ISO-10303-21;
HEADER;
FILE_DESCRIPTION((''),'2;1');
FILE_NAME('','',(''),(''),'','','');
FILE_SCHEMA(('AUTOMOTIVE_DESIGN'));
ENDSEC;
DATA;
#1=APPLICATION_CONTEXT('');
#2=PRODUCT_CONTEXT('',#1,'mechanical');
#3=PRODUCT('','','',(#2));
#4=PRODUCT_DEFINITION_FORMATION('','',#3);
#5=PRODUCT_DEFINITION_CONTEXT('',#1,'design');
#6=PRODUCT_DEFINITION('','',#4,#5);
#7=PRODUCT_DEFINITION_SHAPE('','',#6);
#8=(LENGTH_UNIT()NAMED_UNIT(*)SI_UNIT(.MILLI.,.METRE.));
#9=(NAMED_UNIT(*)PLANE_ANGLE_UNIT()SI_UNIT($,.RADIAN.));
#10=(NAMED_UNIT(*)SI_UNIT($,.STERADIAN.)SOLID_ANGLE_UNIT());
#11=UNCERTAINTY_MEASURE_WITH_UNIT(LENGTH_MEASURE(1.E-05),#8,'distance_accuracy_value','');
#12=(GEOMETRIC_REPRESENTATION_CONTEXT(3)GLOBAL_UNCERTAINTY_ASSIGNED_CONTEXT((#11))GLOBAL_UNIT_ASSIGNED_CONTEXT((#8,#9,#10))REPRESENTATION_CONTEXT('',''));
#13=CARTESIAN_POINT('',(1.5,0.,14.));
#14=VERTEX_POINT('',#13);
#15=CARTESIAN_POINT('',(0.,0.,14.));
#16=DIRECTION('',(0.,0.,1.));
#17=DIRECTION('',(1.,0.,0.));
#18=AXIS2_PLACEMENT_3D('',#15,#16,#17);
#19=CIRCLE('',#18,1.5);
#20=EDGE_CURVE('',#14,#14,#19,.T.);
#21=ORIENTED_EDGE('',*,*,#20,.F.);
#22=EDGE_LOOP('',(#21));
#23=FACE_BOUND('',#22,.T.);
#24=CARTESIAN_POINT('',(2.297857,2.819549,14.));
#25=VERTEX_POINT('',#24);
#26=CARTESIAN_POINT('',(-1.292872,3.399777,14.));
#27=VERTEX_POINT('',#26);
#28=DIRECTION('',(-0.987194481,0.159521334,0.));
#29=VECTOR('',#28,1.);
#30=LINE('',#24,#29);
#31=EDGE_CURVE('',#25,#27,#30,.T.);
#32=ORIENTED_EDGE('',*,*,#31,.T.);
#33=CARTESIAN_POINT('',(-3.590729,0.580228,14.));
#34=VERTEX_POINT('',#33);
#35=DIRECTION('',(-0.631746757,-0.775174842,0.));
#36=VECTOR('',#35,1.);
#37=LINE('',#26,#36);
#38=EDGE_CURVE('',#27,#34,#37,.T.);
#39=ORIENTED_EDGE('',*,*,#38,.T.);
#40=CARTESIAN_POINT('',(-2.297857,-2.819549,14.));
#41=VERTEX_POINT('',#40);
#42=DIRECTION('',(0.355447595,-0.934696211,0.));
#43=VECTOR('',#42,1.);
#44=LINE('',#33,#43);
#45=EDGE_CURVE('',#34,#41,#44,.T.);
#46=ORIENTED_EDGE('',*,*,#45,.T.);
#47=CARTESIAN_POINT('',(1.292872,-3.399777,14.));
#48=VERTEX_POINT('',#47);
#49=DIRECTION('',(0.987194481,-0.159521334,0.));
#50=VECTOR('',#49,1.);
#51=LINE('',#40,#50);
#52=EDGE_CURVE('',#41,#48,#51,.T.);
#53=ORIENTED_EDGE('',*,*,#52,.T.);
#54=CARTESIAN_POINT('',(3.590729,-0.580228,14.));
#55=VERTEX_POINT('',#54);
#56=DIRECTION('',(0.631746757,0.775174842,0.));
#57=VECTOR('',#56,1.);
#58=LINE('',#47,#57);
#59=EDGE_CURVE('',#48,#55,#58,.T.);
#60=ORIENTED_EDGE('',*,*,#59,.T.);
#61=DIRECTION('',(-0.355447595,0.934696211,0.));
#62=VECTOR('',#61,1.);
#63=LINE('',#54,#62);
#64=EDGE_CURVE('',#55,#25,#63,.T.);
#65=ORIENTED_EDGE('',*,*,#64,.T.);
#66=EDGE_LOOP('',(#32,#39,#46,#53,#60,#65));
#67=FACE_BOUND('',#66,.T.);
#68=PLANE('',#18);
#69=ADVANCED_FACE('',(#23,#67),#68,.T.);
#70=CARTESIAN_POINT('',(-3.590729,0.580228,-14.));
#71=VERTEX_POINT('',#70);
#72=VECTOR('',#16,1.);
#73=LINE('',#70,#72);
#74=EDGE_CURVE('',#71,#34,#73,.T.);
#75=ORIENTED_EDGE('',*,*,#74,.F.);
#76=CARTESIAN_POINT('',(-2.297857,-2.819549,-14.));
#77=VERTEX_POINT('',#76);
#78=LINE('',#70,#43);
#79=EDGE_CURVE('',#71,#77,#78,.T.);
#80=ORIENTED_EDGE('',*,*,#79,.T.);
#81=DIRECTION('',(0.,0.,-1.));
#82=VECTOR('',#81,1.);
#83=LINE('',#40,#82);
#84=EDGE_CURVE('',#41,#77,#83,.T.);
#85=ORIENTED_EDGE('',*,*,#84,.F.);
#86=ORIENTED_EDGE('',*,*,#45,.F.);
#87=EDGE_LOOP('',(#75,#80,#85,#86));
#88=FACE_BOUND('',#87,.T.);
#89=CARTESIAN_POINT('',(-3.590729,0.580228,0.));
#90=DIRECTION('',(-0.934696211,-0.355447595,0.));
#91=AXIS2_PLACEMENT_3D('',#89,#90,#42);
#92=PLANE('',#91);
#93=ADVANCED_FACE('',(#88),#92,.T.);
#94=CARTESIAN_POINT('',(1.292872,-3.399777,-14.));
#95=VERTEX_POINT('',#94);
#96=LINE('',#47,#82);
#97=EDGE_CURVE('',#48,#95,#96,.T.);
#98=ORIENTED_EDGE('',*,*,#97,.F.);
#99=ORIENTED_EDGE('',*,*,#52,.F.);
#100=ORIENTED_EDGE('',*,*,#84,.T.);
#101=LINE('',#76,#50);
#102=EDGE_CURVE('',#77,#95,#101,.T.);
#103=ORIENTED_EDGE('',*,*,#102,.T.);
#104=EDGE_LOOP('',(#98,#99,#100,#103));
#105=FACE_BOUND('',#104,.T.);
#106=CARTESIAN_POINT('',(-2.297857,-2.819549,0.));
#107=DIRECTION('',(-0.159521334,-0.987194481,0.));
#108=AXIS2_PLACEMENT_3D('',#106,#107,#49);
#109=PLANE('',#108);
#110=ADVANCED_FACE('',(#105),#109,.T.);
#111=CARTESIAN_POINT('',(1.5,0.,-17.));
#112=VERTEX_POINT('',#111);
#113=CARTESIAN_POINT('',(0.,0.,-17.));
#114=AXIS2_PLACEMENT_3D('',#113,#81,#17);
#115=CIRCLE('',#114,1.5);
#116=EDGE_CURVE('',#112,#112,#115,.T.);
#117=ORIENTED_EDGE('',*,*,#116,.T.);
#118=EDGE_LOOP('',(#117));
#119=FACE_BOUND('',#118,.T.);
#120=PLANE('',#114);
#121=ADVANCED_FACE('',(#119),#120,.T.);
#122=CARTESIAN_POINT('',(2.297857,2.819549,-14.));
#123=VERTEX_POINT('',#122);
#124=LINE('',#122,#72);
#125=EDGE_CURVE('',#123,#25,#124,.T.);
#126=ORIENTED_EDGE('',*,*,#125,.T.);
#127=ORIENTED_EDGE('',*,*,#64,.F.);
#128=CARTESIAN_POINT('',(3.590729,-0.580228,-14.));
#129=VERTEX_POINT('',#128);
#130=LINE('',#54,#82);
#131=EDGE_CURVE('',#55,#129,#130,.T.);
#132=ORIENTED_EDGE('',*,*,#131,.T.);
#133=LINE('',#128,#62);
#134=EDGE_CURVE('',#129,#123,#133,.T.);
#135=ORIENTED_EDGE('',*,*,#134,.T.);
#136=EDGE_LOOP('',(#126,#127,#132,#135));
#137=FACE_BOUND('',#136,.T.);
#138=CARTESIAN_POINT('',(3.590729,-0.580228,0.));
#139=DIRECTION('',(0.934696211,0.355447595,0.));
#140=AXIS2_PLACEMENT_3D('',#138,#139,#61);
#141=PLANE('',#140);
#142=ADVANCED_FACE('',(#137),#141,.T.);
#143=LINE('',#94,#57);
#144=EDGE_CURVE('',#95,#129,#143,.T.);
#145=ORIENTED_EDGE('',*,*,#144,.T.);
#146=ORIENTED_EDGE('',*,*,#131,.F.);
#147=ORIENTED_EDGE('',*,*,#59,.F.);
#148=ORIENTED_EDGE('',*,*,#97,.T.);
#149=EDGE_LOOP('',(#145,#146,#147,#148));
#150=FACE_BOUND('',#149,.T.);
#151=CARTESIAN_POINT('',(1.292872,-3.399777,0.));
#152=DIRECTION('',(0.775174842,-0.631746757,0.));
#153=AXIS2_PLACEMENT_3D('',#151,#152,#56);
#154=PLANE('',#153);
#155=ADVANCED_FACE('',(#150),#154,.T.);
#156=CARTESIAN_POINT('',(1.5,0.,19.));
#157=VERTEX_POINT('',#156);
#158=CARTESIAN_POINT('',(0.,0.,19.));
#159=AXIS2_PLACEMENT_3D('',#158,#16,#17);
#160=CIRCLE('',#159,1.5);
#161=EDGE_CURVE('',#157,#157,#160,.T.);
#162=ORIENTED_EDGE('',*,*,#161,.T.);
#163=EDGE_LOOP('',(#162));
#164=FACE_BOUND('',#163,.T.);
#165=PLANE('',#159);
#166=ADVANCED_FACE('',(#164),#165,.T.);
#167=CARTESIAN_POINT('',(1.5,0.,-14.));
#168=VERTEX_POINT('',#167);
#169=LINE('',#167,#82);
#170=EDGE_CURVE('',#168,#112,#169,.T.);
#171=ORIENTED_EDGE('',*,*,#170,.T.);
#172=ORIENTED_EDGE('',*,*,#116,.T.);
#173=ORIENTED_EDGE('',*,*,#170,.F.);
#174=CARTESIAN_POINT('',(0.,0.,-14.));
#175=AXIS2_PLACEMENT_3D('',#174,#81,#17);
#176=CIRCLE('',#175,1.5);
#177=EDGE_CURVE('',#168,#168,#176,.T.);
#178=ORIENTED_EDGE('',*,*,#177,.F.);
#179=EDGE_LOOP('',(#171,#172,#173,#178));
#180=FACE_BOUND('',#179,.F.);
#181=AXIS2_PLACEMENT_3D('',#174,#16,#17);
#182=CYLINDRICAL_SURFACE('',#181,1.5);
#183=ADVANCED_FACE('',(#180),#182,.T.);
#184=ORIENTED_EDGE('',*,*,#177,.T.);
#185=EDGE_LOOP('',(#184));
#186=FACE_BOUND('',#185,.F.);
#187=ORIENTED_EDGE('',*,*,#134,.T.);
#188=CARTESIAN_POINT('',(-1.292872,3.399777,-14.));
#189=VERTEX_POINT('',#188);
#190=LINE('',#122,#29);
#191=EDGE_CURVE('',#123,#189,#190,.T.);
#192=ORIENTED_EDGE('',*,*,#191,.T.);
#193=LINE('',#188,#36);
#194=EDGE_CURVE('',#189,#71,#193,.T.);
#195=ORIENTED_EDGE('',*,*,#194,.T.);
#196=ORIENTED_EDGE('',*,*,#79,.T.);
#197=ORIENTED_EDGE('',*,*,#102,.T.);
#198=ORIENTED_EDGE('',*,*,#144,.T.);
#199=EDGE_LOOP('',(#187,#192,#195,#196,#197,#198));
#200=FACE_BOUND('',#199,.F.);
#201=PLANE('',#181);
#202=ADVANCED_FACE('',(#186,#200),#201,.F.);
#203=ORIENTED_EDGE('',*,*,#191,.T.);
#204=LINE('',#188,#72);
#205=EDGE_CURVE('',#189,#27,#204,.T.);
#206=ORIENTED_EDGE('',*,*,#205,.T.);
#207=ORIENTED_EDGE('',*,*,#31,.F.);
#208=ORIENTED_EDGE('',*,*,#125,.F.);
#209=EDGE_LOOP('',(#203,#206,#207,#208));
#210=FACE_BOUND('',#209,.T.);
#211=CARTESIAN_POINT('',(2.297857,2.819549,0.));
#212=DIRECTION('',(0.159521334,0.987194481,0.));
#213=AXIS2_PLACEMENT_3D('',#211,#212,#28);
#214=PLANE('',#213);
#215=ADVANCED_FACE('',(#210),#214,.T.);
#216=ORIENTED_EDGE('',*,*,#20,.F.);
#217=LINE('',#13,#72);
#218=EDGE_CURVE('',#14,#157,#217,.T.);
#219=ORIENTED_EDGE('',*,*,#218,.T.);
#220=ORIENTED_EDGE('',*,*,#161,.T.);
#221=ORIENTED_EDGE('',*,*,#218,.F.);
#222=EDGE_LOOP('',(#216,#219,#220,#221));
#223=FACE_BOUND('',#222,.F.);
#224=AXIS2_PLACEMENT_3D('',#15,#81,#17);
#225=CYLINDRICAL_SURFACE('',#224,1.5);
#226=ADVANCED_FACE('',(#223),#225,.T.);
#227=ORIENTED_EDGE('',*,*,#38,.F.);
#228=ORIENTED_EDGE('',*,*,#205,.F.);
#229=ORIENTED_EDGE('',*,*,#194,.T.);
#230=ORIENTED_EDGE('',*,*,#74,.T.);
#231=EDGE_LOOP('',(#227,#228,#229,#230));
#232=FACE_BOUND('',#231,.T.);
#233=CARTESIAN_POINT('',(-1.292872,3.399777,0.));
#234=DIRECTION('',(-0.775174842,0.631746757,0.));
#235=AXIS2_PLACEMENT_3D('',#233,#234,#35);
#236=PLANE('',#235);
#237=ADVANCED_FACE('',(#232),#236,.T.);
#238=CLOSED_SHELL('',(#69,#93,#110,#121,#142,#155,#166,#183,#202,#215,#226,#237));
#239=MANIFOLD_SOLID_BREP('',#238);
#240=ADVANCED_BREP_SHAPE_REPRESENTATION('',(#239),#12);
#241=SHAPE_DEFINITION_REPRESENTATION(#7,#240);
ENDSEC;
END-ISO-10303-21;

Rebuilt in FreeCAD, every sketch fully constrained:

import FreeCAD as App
import Part
import Sketcher
from FreeCAD import Vector
Q = App.Units.Quantity

doc = App.newDocument("Part")
body = doc.addObject("PartDesign::Body", "Body")

# Sketch on XY plane
sketch1 = body.newObject("Sketcher::SketchObject", "Sketch")
sketch1.AttachmentSupport = (doc.getObject("XY_Plane"), [""])
sketch1.MapMode = "FlatFace"
sketch1.addGeometry([
    Part.LineSegment(Vector(3.6, -0.6, 0), Vector(2.3, 2.8, 0)),  # 0
    Part.LineSegment(Vector(2.3, 2.8, 0), Vector(-1.3, 3.4, 0)),  # 1
    Part.LineSegment(Vector(-1.3, 3.4, 0), Vector(-3.6, 0.6, 0)),  # 2
    Part.LineSegment(Vector(-3.6, 0.6, 0), Vector(-2.3, -2.8, 0)),  # 3
    Part.LineSegment(Vector(-2.3, -2.8, 0), Vector(1.3, -3.4, 0)),  # 4
    Part.LineSegment(Vector(1.3, -3.4, 0), Vector(3.6, -0.6, 0)),  # 5
    Part.Circle(Vector(0, 0, 0), Vector(0, 0, 1), 1.5),  # 6
], False)
sketch1.addConstraint([
    Sketcher.Constraint("Coincident", 0, 2, 1, 1),
    Sketcher.Constraint("Coincident", 1, 2, 2, 1),
    Sketcher.Constraint("Coincident", 2, 2, 3, 1),
    Sketcher.Constraint("Coincident", 3, 2, 4, 1),
    Sketcher.Constraint("Coincident", 4, 2, 5, 1),
    Sketcher.Constraint("Coincident", 5, 2, 0, 1),
    Sketcher.Constraint("Coincident", 6, 3, -1, 1),
    Sketcher.Constraint("Symmetric", 0, 2, 3, 2, -1, 1),
    Sketcher.Constraint("Symmetric", 1, 2, 4, 2, -1, 1),
    Sketcher.Constraint("Symmetric", 2, 2, 5, 2, -1, 1),
    Sketcher.Constraint("Equal", 0, 1),
    Sketcher.Constraint("Equal", 1, 2),
    Sketcher.Constraint("Diameter", 6, Q("3 mm")),
    Sketcher.Constraint("DistanceX", 2, 2, 4, 2, Q("4.883601 mm")),
    Sketcher.Constraint("DistanceY", -1, 1, 0, 2, Q("2.819549 mm")),
    Sketcher.Constraint("DistanceX", 2, 2, -1, 1, Q("3.590729 mm")),
    Sketcher.Constraint("DistanceX", 1, 2, 0, 2, Q("3.590729 mm")),
])
pad1 = body.newObject("PartDesign::Pad", "Pad")
pad1.Profile = sketch1
pad1.Length = 28
pad1.Midplane = True

# Sketch on XY plane
sketch2 = body.newObject("Sketcher::SketchObject", "Sketch001")
sketch2.AttachmentSupport = (doc.getObject("XY_Plane"), [""])
sketch2.MapMode = "FlatFace"
sketch2.addGeometry(Part.Circle(Vector(0, 0, 0), Vector(0, 0, 1), 1.5), False)
sketch2.addConstraint([
    Sketcher.Constraint("Coincident", 0, 3, -1, 1),
    Sketcher.Constraint("Diameter", 0, Q("3 mm")),
])
pad2 = body.newObject("PartDesign::Pad", "Pad001")
pad2.Profile = sketch2
pad2.Length = 28
pad2.Midplane = True

# Sketch on XY plane
sketch3 = body.newObject("Sketcher::SketchObject", "Sketch002")
sketch3.AttachmentSupport = (doc.getObject("XY_Plane"), [""])
sketch3.MapMode = "FlatFace"
sketch3.AttachmentOffset = App.Placement(Vector(0, 0, -14), App.Rotation())
sketch3.addGeometry(Part.Circle(Vector(0, 0, 0), Vector(0, 0, 1), 1.5), False)
sketch3.addConstraint([
    Sketcher.Constraint("Coincident", 0, 3, -1, 1),
    Sketcher.Constraint("Diameter", 0, Q("3 mm")),
])
pad3 = body.newObject("PartDesign::Pad", "Pad002")
pad3.Profile = sketch3
pad3.Length = 3
pad3.Reversed = True

# Sketch on XY plane
sketch4 = body.newObject("Sketcher::SketchObject", "Sketch003")
sketch4.AttachmentSupport = (doc.getObject("XY_Plane"), [""])
sketch4.MapMode = "FlatFace"
sketch4.AttachmentOffset = App.Placement(Vector(0, 0, 14), App.Rotation())
sketch4.addGeometry(Part.Circle(Vector(0, 0, 0), Vector(0, 0, 1), 1.5), False)
sketch4.addConstraint([
    Sketcher.Constraint("Coincident", 0, 3, -1, 1),
    Sketcher.Constraint("Diameter", 0, Q("3 mm")),
])
pad4 = body.newObject("PartDesign::Pad", "Pad003")
pad4.Profile = sketch4
pad4.Length = 5

doc.recompute()
